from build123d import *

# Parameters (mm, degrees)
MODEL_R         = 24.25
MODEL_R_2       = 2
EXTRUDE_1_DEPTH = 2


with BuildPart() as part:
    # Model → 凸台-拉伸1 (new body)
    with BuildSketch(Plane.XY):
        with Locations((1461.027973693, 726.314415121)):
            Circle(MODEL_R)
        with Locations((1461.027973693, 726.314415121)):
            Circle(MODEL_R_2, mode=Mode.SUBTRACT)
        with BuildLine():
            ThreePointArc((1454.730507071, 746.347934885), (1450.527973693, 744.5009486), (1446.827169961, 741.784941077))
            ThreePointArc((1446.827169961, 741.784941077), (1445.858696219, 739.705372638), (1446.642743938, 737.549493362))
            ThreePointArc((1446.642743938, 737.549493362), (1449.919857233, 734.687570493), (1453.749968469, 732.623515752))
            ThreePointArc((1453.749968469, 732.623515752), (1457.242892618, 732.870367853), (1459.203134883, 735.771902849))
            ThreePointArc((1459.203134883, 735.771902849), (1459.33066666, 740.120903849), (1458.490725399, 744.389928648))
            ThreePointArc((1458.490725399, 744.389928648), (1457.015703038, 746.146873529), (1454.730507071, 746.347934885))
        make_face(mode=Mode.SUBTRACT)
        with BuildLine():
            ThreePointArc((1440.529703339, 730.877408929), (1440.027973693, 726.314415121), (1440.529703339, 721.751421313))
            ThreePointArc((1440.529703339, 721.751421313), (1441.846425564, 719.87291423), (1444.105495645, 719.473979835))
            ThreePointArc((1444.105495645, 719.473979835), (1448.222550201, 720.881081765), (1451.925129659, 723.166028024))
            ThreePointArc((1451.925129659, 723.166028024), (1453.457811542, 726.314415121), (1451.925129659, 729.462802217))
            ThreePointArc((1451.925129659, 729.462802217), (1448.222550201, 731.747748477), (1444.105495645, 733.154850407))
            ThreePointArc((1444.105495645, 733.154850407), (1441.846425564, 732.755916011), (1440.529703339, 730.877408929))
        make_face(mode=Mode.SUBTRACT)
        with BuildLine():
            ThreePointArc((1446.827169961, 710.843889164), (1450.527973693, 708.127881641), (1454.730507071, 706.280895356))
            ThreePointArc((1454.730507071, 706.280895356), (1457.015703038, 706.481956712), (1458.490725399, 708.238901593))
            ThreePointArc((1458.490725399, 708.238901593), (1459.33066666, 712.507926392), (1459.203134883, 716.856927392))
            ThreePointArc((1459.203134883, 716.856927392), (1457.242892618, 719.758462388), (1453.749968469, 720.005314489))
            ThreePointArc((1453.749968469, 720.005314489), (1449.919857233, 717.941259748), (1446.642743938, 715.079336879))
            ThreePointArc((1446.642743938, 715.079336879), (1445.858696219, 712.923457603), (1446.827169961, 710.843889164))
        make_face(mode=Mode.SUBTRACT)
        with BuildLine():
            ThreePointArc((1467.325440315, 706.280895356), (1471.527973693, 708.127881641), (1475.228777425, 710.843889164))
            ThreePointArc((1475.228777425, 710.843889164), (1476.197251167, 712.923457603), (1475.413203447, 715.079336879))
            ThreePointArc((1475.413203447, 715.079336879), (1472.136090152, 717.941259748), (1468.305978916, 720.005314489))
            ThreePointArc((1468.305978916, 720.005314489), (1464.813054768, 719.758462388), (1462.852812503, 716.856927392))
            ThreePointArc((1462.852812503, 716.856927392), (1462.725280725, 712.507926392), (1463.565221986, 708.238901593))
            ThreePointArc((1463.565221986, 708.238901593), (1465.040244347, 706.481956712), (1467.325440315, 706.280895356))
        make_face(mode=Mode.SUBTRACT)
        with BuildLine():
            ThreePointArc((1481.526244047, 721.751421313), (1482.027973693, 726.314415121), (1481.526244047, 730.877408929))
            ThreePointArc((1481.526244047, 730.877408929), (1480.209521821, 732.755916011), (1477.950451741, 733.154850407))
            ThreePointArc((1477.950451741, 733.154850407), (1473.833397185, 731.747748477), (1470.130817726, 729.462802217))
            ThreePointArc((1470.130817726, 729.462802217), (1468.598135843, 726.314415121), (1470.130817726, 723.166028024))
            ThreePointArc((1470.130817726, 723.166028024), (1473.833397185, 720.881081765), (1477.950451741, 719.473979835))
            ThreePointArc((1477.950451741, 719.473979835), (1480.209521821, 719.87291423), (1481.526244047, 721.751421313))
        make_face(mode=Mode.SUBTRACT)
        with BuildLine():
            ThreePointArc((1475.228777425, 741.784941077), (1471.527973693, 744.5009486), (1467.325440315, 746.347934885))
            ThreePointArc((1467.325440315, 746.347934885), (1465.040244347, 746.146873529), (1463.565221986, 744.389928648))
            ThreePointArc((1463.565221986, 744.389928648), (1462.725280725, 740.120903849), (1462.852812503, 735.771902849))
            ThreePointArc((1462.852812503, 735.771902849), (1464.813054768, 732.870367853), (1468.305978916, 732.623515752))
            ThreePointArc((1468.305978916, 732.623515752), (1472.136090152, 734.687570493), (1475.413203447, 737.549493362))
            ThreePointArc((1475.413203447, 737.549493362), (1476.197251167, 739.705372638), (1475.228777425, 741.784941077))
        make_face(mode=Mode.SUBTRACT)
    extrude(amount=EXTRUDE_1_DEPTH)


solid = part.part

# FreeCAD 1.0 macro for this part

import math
import FreeCAD as App
import Part
import Sketcher

V = App.Vector
Q = App.Units.Quantity

doc = App.newDocument("Part")
body = doc.addObject("PartDesign::Body", "Body")

# Sketch on XY plane
sketch1 = body.newObject("Sketcher::SketchObject", "Sketch")
sketch1.AttachmentSupport = (doc.getObject("XY_Plane"), [""])
sketch1.MapMode = "FlatFace"
sketch1.addGeometry([
    Part.Circle(V(1461, 726.3, 0), V(0, 0, 1), 24.2),  # 0
    Part.ArcOfCircle(Part.Circle(V(1461, 726.3, 0), V(0, 0, 1), 21), math.radians(-133), math.radians(-107)),  # 1
    Part.ArcOfCircle(Part.Circle(V(1448.9, 713.1, 0), V(0, 0, 1), 3), math.radians(138), math.radians(227)),  # 2
    Part.ArcOfCircle(Part.Circle(V(1461, 701.9, 0), V(0, 0, 1), 19.5), math.radians(112), math.radians(138)),  # 3
    Part.ArcOfCircle(Part.Circle(V(1455.2, 716.3, 0), V(0, 0, 1), 4), math.radians(8), math.radians(112)),  # 4
    Part.ArcOfCircle(Part.Circle(V(1439.9, 714.1, 0), V(0, 0, 1), 19.5), math.radians(-18), math.radians(8)),  # 5
    Part.ArcOfCircle(Part.Circle(V(1455.6, 709.1, 0), V(0, 0, 1), 3), math.radians(-107), math.radians(-18)),  # 6
    Part.ArcOfCircle(Part.Circle(V(1461, 726.3, 0), V(0, 0, 1), 21), math.radians(-73), math.radians(-47)),  # 7
    Part.ArcOfCircle(Part.Circle(V(1466.4, 709.1, 0), V(0, 0, 1), 3), math.radians(-162), math.radians(-73)),  # 8
    Part.ArcOfCircle(Part.Circle(V(1482.2, 714.1, 0), V(0, 0, 1), 19.5), math.radians(172), math.radians(198)),  # 9
    Part.ArcOfCircle(Part.Circle(V(1466.8, 716.3, 0), V(0, 0, 1), 4), math.radians(68), math.radians(172)),  # 10
    Part.ArcOfCircle(Part.Circle(V(1461, 701.9, 0), V(0, 0, 1), 19.5), math.radians(42), math.radians(68)),  # 11
    Part.ArcOfCircle(Part.Circle(V(1473.2, 713.1, 0), V(0, 0, 1), 3), math.radians(-47), math.radians(42)),  # 12
    Part.ArcOfCircle(Part.Circle(V(1461, 726.3, 0), V(0, 0, 1), 21), math.radians(167), math.radians(193)),  # 13
    Part.ArcOfCircle(Part.Circle(V(1443.5, 730.2, 0), V(0, 0, 1), 3), math.radians(78), math.radians(167)),  # 14
    Part.ArcOfCircle(Part.Circle(V(1439.9, 714.1, 0), V(0, 0, 1), 19.5), math.radians(52), math.radians(78)),  # 15
    Part.ArcOfCircle(Part.Circle(V(1449.5, 726.3, 0), V(0, 0, 1), 4), math.radians(-52), math.radians(52)),  # 16
    Part.ArcOfCircle(Part.Circle(V(1439.9, 738.5, 0), V(0, 0, 1), 19.5), math.radians(-78), math.radians(-52)),  # 17
    Part.ArcOfCircle(Part.Circle(V(1443.5, 722.4, 0), V(0, 0, 1), 3), math.radians(-167), math.radians(-78)),  # 18
    Part.ArcOfCircle(Part.Circle(V(1461, 726.3, 0), V(0, 0, 1), 21), math.radians(107), math.radians(133)),  # 19
    Part.ArcOfCircle(Part.Circle(V(1455.6, 743.5, 0), V(0, 0, 1), 3), math.radians(18), math.radians(107)),  # 20
    Part.ArcOfCircle(Part.Circle(V(1439.9, 738.5, 0), V(0, 0, 1), 19.5), math.radians(-8), math.radians(18)),  # 21
    Part.ArcOfCircle(Part.Circle(V(1455.2, 736.3, 0), V(0, 0, 1), 4), math.radians(-112), math.radians(-8)),  # 22
    Part.ArcOfCircle(Part.Circle(V(1461, 750.7, 0), V(0, 0, 1), 19.5), math.radians(-138), math.radians(-112)),  # 23
    Part.ArcOfCircle(Part.Circle(V(1448.9, 739.6, 0), V(0, 0, 1), 3), math.radians(133), math.radians(222)),  # 24
    Part.Circle(V(1461, 726.3, 0), V(0, 0, 1), 2),  # 25
    Part.ArcOfCircle(Part.Circle(V(1461, 726.3, 0), V(0, 0, 1), 21), math.radians(-13), math.radians(13)),  # 26
    Part.ArcOfCircle(Part.Circle(V(1478.6, 722.4, 0), V(0, 0, 1), 3), math.radians(-102), math.radians(-13)),  # 27
    Part.ArcOfCircle(Part.Circle(V(1482.2, 738.5, 0), V(0, 0, 1), 19.5), math.radians(-128), math.radians(-102)),  # 28
    Part.ArcOfCircle(Part.Circle(V(1472.6, 726.3, 0), V(0, 0, 1), 4), math.radians(128), math.radians(232)),  # 29
    Part.ArcOfCircle(Part.Circle(V(1482.2, 714.1, 0), V(0, 0, 1), 19.5), math.radians(102), math.radians(128)),  # 30
    Part.ArcOfCircle(Part.Circle(V(1478.6, 730.2, 0), V(0, 0, 1), 3), math.radians(13), math.radians(102)),  # 31
    Part.ArcOfCircle(Part.Circle(V(1461, 726.3, 0), V(0, 0, 1), 21), math.radians(47), math.radians(73)),  # 32
    Part.ArcOfCircle(Part.Circle(V(1473.2, 739.6, 0), V(0, 0, 1), 3), math.radians(-42), math.radians(47)),  # 33
    Part.ArcOfCircle(Part.Circle(V(1461, 750.7, 0), V(0, 0, 1), 19.5), math.radians(-68), math.radians(-42)),  # 34
    Part.ArcOfCircle(Part.Circle(V(1466.8, 736.3, 0), V(0, 0, 1), 4), math.radians(-172), math.radians(-68)),  # 35
    Part.ArcOfCircle(Part.Circle(V(1482.2, 738.5, 0), V(0, 0, 1), 19.5), math.radians(162), math.radians(188)),  # 36
    Part.ArcOfCircle(Part.Circle(V(1466.4, 743.5, 0), V(0, 0, 1), 3), math.radians(73), math.radians(162)),  # 37
], False)
sketch1.addConstraint([
    Sketcher.Constraint("Tangent", 1, 1, 2, 2),
    Sketcher.Constraint("Tangent", 2, 1, 3, 2),
    Sketcher.Constraint("Tangent", 3, 1, 4, 2),
    Sketcher.Constraint("Tangent", 4, 1, 5, 2),
    Sketcher.Constraint("Tangent", 5, 1, 6, 2),
    Sketcher.Constraint("Tangent", 6, 1, 1, 2),
    Sketcher.Constraint("Tangent", 7, 1, 8, 2),
    Sketcher.Constraint("Tangent", 8, 1, 9, 2),
    Sketcher.Constraint("Tangent", 9, 1, 10, 2),
    Sketcher.Constraint("Tangent", 10, 1, 11, 2),
    Sketcher.Constraint("Tangent", 11, 1, 12, 2),
    Sketcher.Constraint("Tangent", 12, 1, 7, 2),
    Sketcher.Constraint("Tangent", 13, 1, 14, 2),
    Sketcher.Constraint("Tangent", 14, 1, 15, 2),
    Sketcher.Constraint("Tangent", 15, 1, 16, 2),
    Sketcher.Constraint("Tangent", 16, 1, 17, 2),
    Sketcher.Constraint("Tangent", 17, 1, 18, 2),
    Sketcher.Constraint("Tangent", 18, 1, 13, 2),
    Sketcher.Constraint("Tangent", 19, 1, 20, 2),
    Sketcher.Constraint("Tangent", 20, 1, 21, 2),
    Sketcher.Constraint("Tangent", 21, 1, 22, 2),
    Sketcher.Constraint("Tangent", 22, 1, 23, 2),
    Sketcher.Constraint("Tangent", 23, 1, 24, 2),
    Sketcher.Constraint("Tangent", 24, 1, 19, 2),
    Sketcher.Constraint("Tangent", 26, 1, 27, 2),
    Sketcher.Constraint("Tangent", 27, 1, 28, 2),
    Sketcher.Constraint("Tangent", 28, 1, 29, 2),
    Sketcher.Constraint("Tangent", 29, 1, 30, 2),
    Sketcher.Constraint("Tangent", 30, 1, 31, 2),
    Sketcher.Constraint("Tangent", 31, 1, 26, 2),
    Sketcher.Constraint("Tangent", 32, 1, 33, 2),
    Sketcher.Constraint("Tangent", 33, 1, 34, 2),
    Sketcher.Constraint("Tangent", 34, 1, 35, 2),
    Sketcher.Constraint("Tangent", 35, 1, 36, 2),
    Sketcher.Constraint("Tangent", 36, 1, 37, 2),
    Sketcher.Constraint("Tangent", 37, 1, 32, 2),
    Sketcher.Constraint("Coincident", 1, 3, 0, 3),
    Sketcher.Constraint("Coincident", 7, 3, 0, 3),
    Sketcher.Constraint("Coincident", 11, 3, 3, 3),
    Sketcher.Constraint("Coincident", 13, 3, 0, 3),
    Sketcher.Constraint("Coincident", 15, 3, 5, 3),
    Sketcher.Constraint("Coincident", 19, 3, 0, 3),
    Sketcher.Constraint("Coincident", 21, 3, 17, 3),
    Sketcher.Constraint("Coincident", 25, 3, 0, 3),
    Sketcher.Constraint("Coincident", 26, 3, 0, 3),
    Sketcher.Constraint("Coincident", 30, 3, 9, 3),
    Sketcher.Constraint("Coincident", 32, 3, 0, 3),
    Sketcher.Constraint("Coincident", 34, 3, 23, 3),
    Sketcher.Constraint("Coincident", 36, 3, 28, 3),
    Sketcher.Constraint("Equal", 3, 5),
    Sketcher.Constraint("Equal", 2, 6),
    Sketcher.Constraint("Equal", 1, 7),
    Sketcher.Constraint("Equal", 6, 8),
    Sketcher.Constraint("Equal", 5, 9),
    Sketcher.Constraint("Equal", 4, 10),
    Sketcher.Constraint("Equal", 9, 11),
    Sketcher.Constraint("Equal", 8, 12),
    Sketcher.Constraint("Equal", 7, 13),
    Sketcher.Constraint("Equal", 12, 14),
    Sketcher.Constraint("Equal", 11, 15),
    Sketcher.Constraint("Equal", 10, 16),
    Sketcher.Constraint("Equal", 15, 17),
    Sketcher.Constraint("Equal", 14, 18),
    Sketcher.Constraint("Equal", 13, 19),
    Sketcher.Constraint("Equal", 18, 20),
    Sketcher.Constraint("Equal", 17, 21),
    Sketcher.Constraint("Equal", 16, 22),
    Sketcher.Constraint("Equal", 21, 23),
    Sketcher.Constraint("Equal", 20, 24),
    Sketcher.Constraint("Equal", 19, 26),
    Sketcher.Constraint("Equal", 24, 27),
    Sketcher.Constraint("Equal", 23, 28),
    Sketcher.Constraint("Equal", 22, 29),
    Sketcher.Constraint("Equal", 28, 30),
    Sketcher.Constraint("Equal", 27, 31),
    Sketcher.Constraint("Equal", 26, 32),
    Sketcher.Constraint("Equal", 31, 33),
    Sketcher.Constraint("Equal", 30, 34),
    Sketcher.Constraint("Equal", 29, 35),
    Sketcher.Constraint("Equal", 34, 36),
    Sketcher.Constraint("Equal", 33, 37),
    Sketcher.Constraint("Horizontal", 6, 3, 8, 3),
    Sketcher.Constraint("Horizontal", 5, 3, 9, 3),
    Sketcher.Constraint("Horizontal", 4, 3, 10, 3),
    Sketcher.Constraint("Horizontal", 13, 3, 16, 3),
    Sketcher.Constraint("Horizontal", 18, 3, 27, 3),
    Sketcher.Constraint("Horizontal", 21, 3, 28, 3),
    Sketcher.Constraint("Horizontal", 24, 3, 33, 3),
    Sketcher.Constraint("Vertical", 15, 3, 17, 3),
    Sketcher.Constraint("Vertical", 4, 3, 22, 3),
    Sketcher.Constraint("Diameter", 25, Q("4 mm")),
    Sketcher.Constraint("Radius", 1, Q("21 mm")),
    Sketcher.Constraint("Radius", 2, Q("3 mm")),
    Sketcher.Constraint("Radius", 4, Q("4 mm")),
    Sketcher.Constraint("Diameter", 0, Q("48.5 mm")),
    Sketcher.Constraint("Radius", 3, Q("19.5 mm")),
    Sketcher.Constraint("DistanceY", -1, 1, 5, 1, Q("708.238902 mm")),
    Sketcher.Constraint("DistanceY", -1, 1, 4, 3, Q("716.294361 mm")),
    Sketcher.Constraint("DistanceX", -1, 1, 12, 3, Q("1473.200091 mm")),
    Sketcher.Constraint("DistanceX", -1, 1, 16, 3, Q("1449.457812 mm")),
    Sketcher.Constraint("DistanceY", -1, 1, 22, 3, Q("736.334469 mm")),
])
pad1 = body.newObject("PartDesign::Pad", "Pad")
pad1.Profile = sketch1
pad1.Length = 2

doc.recompute()
